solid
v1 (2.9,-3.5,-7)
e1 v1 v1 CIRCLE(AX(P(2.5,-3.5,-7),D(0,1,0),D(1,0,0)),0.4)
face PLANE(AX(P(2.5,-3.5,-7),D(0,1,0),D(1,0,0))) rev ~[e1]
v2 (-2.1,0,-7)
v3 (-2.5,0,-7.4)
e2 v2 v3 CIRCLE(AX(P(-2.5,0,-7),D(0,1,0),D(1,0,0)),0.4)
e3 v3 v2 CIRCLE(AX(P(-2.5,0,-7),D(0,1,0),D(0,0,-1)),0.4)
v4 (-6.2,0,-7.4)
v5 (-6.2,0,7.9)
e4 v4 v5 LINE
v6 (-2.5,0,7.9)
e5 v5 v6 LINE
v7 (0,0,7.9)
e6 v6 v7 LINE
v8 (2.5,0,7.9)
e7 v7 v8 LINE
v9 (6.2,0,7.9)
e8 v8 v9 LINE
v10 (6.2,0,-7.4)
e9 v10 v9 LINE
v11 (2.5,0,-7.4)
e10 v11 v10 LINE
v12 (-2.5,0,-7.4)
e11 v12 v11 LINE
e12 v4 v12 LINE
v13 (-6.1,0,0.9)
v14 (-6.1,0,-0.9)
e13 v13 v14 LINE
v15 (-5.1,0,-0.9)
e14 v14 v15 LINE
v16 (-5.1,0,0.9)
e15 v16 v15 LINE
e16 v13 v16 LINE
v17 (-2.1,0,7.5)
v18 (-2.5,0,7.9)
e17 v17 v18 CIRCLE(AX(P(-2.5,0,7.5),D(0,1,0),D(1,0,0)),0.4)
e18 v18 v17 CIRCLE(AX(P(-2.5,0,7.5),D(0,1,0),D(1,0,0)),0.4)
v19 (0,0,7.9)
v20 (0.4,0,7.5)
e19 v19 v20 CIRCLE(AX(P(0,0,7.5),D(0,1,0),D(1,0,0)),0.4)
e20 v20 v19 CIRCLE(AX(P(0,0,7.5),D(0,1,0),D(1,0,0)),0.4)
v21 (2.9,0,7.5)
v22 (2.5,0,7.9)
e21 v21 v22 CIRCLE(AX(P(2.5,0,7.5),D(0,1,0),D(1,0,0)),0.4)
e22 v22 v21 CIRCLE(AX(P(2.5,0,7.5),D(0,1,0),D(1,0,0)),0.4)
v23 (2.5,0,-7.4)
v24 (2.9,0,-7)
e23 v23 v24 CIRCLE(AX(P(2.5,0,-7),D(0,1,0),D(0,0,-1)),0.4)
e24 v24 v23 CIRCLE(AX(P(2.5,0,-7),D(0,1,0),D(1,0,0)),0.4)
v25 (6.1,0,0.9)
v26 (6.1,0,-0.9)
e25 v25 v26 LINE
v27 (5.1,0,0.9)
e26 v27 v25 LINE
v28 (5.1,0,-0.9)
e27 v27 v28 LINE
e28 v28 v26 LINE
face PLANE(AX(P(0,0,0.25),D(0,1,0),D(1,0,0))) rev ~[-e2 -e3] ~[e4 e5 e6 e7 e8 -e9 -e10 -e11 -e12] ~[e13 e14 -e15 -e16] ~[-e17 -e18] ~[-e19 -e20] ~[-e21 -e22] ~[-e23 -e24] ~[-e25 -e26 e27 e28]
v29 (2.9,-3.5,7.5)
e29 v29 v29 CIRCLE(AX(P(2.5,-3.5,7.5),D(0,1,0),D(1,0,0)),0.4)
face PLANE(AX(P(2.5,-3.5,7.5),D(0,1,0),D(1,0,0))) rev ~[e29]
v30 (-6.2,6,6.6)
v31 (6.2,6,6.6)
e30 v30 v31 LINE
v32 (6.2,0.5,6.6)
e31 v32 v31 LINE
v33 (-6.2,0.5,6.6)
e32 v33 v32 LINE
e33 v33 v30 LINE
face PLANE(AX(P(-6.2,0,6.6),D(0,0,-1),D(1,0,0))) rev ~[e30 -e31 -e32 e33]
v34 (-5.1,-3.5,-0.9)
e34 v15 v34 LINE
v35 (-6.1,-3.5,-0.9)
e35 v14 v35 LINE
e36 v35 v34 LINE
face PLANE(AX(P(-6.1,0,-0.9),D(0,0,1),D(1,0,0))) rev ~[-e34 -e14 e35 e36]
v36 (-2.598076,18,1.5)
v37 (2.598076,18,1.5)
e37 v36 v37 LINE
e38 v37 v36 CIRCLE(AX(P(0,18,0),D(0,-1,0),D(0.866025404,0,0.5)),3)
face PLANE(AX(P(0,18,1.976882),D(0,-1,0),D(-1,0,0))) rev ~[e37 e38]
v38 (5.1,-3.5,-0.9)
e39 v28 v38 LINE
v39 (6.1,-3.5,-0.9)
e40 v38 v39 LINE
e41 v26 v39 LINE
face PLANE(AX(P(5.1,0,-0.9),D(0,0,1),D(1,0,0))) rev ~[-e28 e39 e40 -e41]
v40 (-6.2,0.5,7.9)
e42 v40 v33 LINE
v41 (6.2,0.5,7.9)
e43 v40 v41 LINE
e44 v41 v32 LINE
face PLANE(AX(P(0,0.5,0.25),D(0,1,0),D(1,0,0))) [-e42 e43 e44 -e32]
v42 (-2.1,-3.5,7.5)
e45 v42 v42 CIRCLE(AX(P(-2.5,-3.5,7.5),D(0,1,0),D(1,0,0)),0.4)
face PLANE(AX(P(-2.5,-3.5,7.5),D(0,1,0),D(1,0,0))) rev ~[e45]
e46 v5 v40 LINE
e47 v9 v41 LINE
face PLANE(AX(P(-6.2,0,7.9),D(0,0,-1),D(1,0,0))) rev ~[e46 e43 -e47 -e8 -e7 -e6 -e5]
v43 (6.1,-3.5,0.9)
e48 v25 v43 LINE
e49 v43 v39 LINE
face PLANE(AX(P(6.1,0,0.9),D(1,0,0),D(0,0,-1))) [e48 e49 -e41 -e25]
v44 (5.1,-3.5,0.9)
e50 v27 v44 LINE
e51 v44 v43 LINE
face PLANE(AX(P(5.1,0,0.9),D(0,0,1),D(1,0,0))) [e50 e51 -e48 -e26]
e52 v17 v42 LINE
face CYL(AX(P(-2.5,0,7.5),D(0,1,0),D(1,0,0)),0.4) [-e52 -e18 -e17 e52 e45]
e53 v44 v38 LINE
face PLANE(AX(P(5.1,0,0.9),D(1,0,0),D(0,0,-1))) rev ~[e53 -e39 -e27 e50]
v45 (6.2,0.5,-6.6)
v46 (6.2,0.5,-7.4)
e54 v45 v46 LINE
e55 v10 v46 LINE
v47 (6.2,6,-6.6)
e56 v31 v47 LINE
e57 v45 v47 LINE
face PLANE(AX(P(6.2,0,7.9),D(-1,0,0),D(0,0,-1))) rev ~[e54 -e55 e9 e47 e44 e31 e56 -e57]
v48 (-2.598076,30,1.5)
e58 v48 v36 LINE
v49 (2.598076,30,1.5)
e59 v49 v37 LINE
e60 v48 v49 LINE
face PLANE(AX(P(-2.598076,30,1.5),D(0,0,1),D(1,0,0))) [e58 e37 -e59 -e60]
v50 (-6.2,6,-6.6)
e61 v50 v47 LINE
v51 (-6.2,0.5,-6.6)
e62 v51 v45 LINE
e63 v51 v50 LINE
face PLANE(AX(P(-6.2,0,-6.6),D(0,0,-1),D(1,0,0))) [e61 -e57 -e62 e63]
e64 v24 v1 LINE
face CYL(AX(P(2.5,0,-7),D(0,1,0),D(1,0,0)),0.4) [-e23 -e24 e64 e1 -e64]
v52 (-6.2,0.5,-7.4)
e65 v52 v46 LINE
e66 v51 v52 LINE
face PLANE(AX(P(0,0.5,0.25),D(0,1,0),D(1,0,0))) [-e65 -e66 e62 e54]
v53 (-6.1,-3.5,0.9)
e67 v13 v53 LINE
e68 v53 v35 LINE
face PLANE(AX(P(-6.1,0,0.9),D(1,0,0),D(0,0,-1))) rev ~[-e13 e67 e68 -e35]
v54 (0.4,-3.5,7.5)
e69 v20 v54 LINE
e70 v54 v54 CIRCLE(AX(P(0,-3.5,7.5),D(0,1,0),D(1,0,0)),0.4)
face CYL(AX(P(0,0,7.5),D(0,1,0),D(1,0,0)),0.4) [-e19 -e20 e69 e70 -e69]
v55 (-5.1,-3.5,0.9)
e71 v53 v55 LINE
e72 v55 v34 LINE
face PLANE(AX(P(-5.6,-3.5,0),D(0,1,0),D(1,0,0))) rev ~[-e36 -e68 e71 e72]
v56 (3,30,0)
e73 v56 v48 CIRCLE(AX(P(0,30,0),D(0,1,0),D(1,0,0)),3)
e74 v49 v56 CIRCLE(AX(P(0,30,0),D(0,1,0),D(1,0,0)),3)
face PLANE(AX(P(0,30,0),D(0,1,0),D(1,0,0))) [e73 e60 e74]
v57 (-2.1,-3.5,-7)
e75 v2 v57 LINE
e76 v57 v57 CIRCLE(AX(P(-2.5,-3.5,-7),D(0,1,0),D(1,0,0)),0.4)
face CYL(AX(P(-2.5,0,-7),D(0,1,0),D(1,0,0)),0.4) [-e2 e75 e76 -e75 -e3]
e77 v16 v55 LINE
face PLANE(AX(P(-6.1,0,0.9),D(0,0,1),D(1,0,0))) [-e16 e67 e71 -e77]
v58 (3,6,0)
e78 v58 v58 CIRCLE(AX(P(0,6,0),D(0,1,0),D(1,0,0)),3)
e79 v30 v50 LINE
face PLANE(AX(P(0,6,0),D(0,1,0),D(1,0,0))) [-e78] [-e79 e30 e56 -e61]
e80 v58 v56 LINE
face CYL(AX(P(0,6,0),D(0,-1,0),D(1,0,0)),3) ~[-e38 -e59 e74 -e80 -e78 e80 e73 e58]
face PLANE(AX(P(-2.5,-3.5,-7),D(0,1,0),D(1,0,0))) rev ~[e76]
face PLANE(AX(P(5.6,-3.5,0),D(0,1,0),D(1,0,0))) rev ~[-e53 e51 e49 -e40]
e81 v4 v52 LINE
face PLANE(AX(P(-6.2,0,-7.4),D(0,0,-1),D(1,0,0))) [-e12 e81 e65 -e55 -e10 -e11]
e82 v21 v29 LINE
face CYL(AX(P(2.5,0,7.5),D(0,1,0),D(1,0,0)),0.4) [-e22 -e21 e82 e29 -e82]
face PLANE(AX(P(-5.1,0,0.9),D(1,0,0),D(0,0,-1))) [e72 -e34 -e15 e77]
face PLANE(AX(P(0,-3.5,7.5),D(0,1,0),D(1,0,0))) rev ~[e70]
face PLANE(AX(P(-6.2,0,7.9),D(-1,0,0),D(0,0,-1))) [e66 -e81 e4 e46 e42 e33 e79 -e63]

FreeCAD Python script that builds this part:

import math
import FreeCAD as App
import Part
import Sketcher
from FreeCAD import Vector
Q = App.Units.Quantity


def add_polygon(sketch, points):
    """Adds a closed chain of lines whose ends are joined by coincident constraints."""
    first, n = sketch.GeometryCount, len(points)
    for a, b in zip(points, points[1:] + points[:1]):
        sketch.addGeometry(Part.LineSegment(App.Vector(*a, 0), App.Vector(*b, 0)), False)
    for i in range(n):
        sketch.addConstraint(Sketcher.Constraint("Coincident", first + i, 2, first + (i + 1) % n, 1))

doc = App.newDocument("Part")
body = doc.addObject("PartDesign::Body", "Body")

# Sketch on XZ plane
sketch1 = body.newObject("Sketcher::SketchObject", "Sketch")
sketch1.AttachmentSupport = (doc.getObject("XZ_Plane"), [""])
sketch1.MapMode = "FlatFace"
sketch1.addGeometry(Part.Circle(Vector(-2.5, 7.5, 0), Vector(0, 0, 1), 0.4), False)
sketch1.addConstraint([
    Sketcher.Constraint("Diameter", 0, Q("0.8 mm")),
    Sketcher.Constraint("DistanceX", 0, 3, -1, 1, Q("2.5 mm")),
    Sketcher.Constraint("DistanceY", -1, 1, 0, 3, Q("7.5 mm")),
])
pad1 = body.newObject("PartDesign::Pad", "Pad")
pad1.Profile = sketch1
pad1.Length = 3.5
body2 = doc.addObject("PartDesign::Body", "Body001")

# Sketch on XZ plane
sketch2 = body2.newObject("Sketcher::SketchObject", "Sketch001")
sketch2.AttachmentSupport = (doc.getObject("XZ_Plane001"), [""])
sketch2.MapMode = "FlatFace"
sketch2.addGeometry(Part.Circle(Vector(0, 7.5, 0), Vector(0, 0, 1), 0.4), False)
sketch2.addConstraint([
    Sketcher.Constraint("PointOnObject", 0, 3, -2),
    Sketcher.Constraint("Diameter", 0, Q("0.8 mm")),
    Sketcher.Constraint("DistanceY", -1, 1, 0, 3, Q("7.5 mm")),
])
pad2 = body2.newObject("PartDesign::Pad", "Pad001")
pad2.Profile = sketch2
pad2.Length = 3.5
body3 = doc.addObject("PartDesign::Body", "Body002")

# Sketch on XZ plane
sketch3 = body3.newObject("Sketcher::SketchObject", "Sketch002")
sketch3.AttachmentSupport = (doc.getObject("XZ_Plane002"), [""])
sketch3.MapMode = "FlatFace"
sketch3.addGeometry(Part.Circle(Vector(2.5, 7.5, 0), Vector(0, 0, 1), 0.4), False)
sketch3.addConstraint([
    Sketcher.Constraint("Diameter", 0, Q("0.8 mm")),
    Sketcher.Constraint("DistanceX", -1, 1, 0, 3, Q("2.5 mm")),
    Sketcher.Constraint("DistanceY", -1, 1, 0, 3, Q("7.5 mm")),
])
pad3 = body3.newObject("PartDesign::Pad", "Pad002")
pad3.Profile = sketch3
pad3.Length = 3.5
body4 = doc.addObject("PartDesign::Body", "Body003")

# Sketch on XZ plane
sketch4 = body4.newObject("Sketcher::SketchObject", "Sketch003")
sketch4.AttachmentSupport = (doc.getObject("XZ_Plane003"), [""])
sketch4.MapMode = "FlatFace"
sketch4.addGeometry(Part.Circle(Vector(2.5, -7, 0), Vector(0, 0, 1), 0.4), False)
sketch4.addConstraint([
    Sketcher.Constraint("Diameter", 0, Q("0.8 mm")),
    Sketcher.Constraint("DistanceY", 0, 3, -1, 1, Q("7 mm")),
    Sketcher.Constraint("DistanceX", -1, 1, 0, 3, Q("2.5 mm")),
])
pad4 = body4.newObject("PartDesign::Pad", "Pad003")
pad4.Profile = sketch4
pad4.Length = 3.5
body5 = doc.addObject("PartDesign::Body", "Body004")

# Sketch on XZ plane
sketch5 = body5.newObject("Sketcher::SketchObject", "Sketch004")
sketch5.AttachmentSupport = (doc.getObject("XZ_Plane004"), [""])
sketch5.MapMode = "FlatFace"
sketch5.addGeometry(Part.Circle(Vector(-2.5, -7, 0), Vector(0, 0, 1), 0.4), False)
sketch5.addConstraint([
    Sketcher.Constraint("Diameter", 0, Q("0.8 mm")),
    Sketcher.Constraint("DistanceY", 0, 3, -1, 1, Q("7 mm")),
    Sketcher.Constraint("DistanceX", 0, 3, -1, 1, Q("2.5 mm")),
])
pad5 = body5.newObject("PartDesign::Pad", "Pad004")
pad5.Profile = sketch5
pad5.Length = 3.5
body6 = doc.addObject("PartDesign::Body", "Body005")

# Sketch on XZ plane
sketch6 = body6.newObject("Sketcher::SketchObject", "Sketch005")
sketch6.AttachmentSupport = (doc.getObject("XZ_Plane005"), [""])
sketch6.MapMode = "FlatFace"
add_polygon(sketch6, [(-6.1, -0.9), (-6.1, 0.9), (-5.1, 0.9), (-5.1, -0.9)])  # lines 0-3
sketch6.addConstraint([
    Sketcher.Constraint("Vertical", 0),
    Sketcher.Constraint("Horizontal", 1),
    Sketcher.Constraint("Vertical", 2),
    Sketcher.Constraint("Horizontal", 3),
    Sketcher.Constraint("DistanceX", 1, 1, 1, 2, Q("1 mm")),
    Sketcher.Constraint("DistanceY", 0, 1, 0, 2, Q("1.8 mm")),
    Sketcher.Constraint("DistanceX", 0, 2, -1, 1, Q("6.1 mm")),
    Sketcher.Constraint("DistanceY", -1, 1, 0, 2, Q("0.9 mm")),
])
pad6 = body6.newObject("PartDesign::Pad", "Pad005")
pad6.Profile = sketch6
pad6.Length = 3.5
body7 = doc.addObject("PartDesign::Body", "Body006")

# Sketch on XZ plane
sketch7 = body7.newObject("Sketcher::SketchObject", "Sketch006")
sketch7.AttachmentSupport = (doc.getObject("XZ_Plane006"), [""])
sketch7.MapMode = "FlatFace"
add_polygon(sketch7, [(5.1, -0.9), (5.1, 0.9), (6.1, 0.9), (6.1, -0.9)])  # lines 0-3
sketch7.addConstraint([
    Sketcher.Constraint("Vertical", 0),
    Sketcher.Constraint("Horizontal", 1),
    Sketcher.Constraint("Vertical", 2),
    Sketcher.Constraint("Horizontal", 3),
    Sketcher.Constraint("DistanceX", 1, 1, 1, 2, Q("1 mm")),
    Sketcher.Constraint("DistanceY", 0, 1, 0, 2, Q("1.8 mm")),
    Sketcher.Constraint("DistanceX", -1, 1, 0, 2, Q("5.1 mm")),
    Sketcher.Constraint("DistanceY", -1, 1, 0, 2, Q("0.9 mm")),
])
pad7 = body7.newObject("PartDesign::Pad", "Pad006")
pad7.Profile = sketch7
pad7.Length = 3.5
body6.AllowCompound = True
doc.recompute()

boolean = body6.newObject("PartDesign::Boolean", "Boolean")
boolean.Type = "Fuse"
boolean.addObjects([body7])

# Sketch on XZ plane
sketch8 = body6.newObject("Sketcher::SketchObject", "Sketch007")
sketch8.AttachmentSupport = (doc.getObject("XZ_Plane005"), [""])
sketch8.MapMode = "FlatFace"
add_polygon(sketch8, [(-6, -7), (-6, 7), (6, 7), (6, -7)])  # lines 0-3
sketch8.addConstraint([
    Sketcher.Constraint("Vertical", 0),
    Sketcher.Constraint("Horizontal", 1),
    Sketcher.Constraint("Vertical", 2),
    Sketcher.Constraint("Horizontal", 3),
    Sketcher.Constraint("Symmetric", 0, 2, 2, 2, -1, 1),
    Sketcher.Constraint("DistanceX", 1, 1, 1, 2, Q("12.4 mm")),
    Sketcher.Constraint("DistanceY", 0, 1, 0, 2, Q("13.2 mm")),
])
pad8 = body6.newObject("PartDesign::Pad", "Pad007")
pad8.Profile = sketch8
pad8.Length = 6
pad8.Reversed = True
body.AllowCompound = True
doc.recompute()

boolean2 = body.newObject("PartDesign::Boolean", "Boolean001")
boolean2.Type = "Fuse"
boolean2.addObjects([body2])
doc.recompute()

boolean3 = body.newObject("PartDesign::Boolean", "Boolean002")
boolean3.Type = "Fuse"
boolean3.addObjects([body3])
doc.recompute()

boolean4 = body.newObject("PartDesign::Boolean", "Boolean003")
boolean4.Type = "Fuse"
boolean4.addObjects([body4])
doc.recompute()

boolean5 = body.newObject("PartDesign::Boolean", "Boolean004")
boolean5.Type = "Fuse"
boolean5.addObjects([body5])
doc.recompute()

boolean6 = body.newObject("PartDesign::Boolean", "Boolean005")
boolean6.Type = "Fuse"
boolean6.addObjects([body6])

# Sketch on XZ plane
sketch9 = body.newObject("Sketcher::SketchObject", "Sketch008")
sketch9.AttachmentSupport = (doc.getObject("XZ_Plane"), [""])
sketch9.MapMode = "FlatFace"
add_polygon(sketch9, [(-6, -7), (-6, 8), (6, 8), (6, -7)])  # lines 0-3
sketch9.addConstraint([
    Sketcher.Constraint("Vertical", 0),
    Sketcher.Constraint("Horizontal", 1),
    Sketcher.Constraint("Vertical", 2),
    Sketcher.Constraint("Horizontal", 3),
    Sketcher.Constraint("DistanceX", 1, 1, 1, 2, Q("12.4 mm")),
    Sketcher.Constraint("DistanceY", 0, 1, 0, 2, Q("15.3 mm")),
    Sketcher.Constraint("DistanceX", 0, 2, -1, 1, Q("6.2 mm")),
    Sketcher.Constraint("DistanceY", -1, 1, 0, 2, Q("7.9 mm")),
])
pad9 = body.newObject("PartDesign::Pad", "Pad008")
pad9.Profile = sketch9
pad9.Length = 0.5
pad9.Reversed = True

# Sketch on XZ plane
sketch10 = body.newObject("Sketcher::SketchObject", "Sketch009")
sketch10.AttachmentSupport = (doc.getObject("XZ_Plane"), [""])
sketch10.MapMode = "FlatFace"
sketch10.AttachmentOffset = App.Placement(Vector(0, 0, -6), App.Rotation())
sketch10.addGeometry(Part.Circle(Vector(0, 0, 0), Vector(0, 0, 1), 3), False)
sketch10.addConstraint([
    Sketcher.Constraint("Coincident", 0, 3, -1, 1),
    Sketcher.Constraint("Diameter", 0, Q("6 mm")),
])
pad10 = body.newObject("PartDesign::Pad", "Pad009")
pad10.Profile = sketch10
pad10.Length = 24
pad10.Reversed = True

# Sketch on XZ plane
sketch11 = body.newObject("Sketcher::SketchObject", "Sketch010")
sketch11.AttachmentSupport = (doc.getObject("XZ_Plane"), [""])
sketch11.MapMode = "FlatFace"
sketch11.AttachmentOffset = App.Placement(Vector(0, 0, -30), App.Rotation())
sketch11.addGeometry([
    Part.LineSegment(Vector(2.6, 1.5, 0), Vector(-2.6, 1.5, 0)),
    Part.ArcOfCircle(Part.Circle(Vector(0, 0, 0), Vector(0, 0, 1), 3), math.radians(30), math.radians(150)),
], False)
sketch11.addConstraint([
    Sketcher.Constraint("Coincident", 0, 1, 1, 1),
    Sketcher.Constraint("Coincident", 1, 2, 0, 2),
    Sketcher.Constraint("Horizontal", 0),
    Sketcher.Constraint("Coincident", 1, 3, -1, 1),
    Sketcher.Constraint("Radius", 1, Q("3 mm")),
    Sketcher.Constraint("DistanceY", -1, 1, 0, 1, Q("1.5 mm")),
])
pocket1 = body.newObject("PartDesign::Pocket", "Pocket")
pocket1.Profile = sketch11
pocket1.Length = 12
pocket1.Reversed = True

doc.recompute()
